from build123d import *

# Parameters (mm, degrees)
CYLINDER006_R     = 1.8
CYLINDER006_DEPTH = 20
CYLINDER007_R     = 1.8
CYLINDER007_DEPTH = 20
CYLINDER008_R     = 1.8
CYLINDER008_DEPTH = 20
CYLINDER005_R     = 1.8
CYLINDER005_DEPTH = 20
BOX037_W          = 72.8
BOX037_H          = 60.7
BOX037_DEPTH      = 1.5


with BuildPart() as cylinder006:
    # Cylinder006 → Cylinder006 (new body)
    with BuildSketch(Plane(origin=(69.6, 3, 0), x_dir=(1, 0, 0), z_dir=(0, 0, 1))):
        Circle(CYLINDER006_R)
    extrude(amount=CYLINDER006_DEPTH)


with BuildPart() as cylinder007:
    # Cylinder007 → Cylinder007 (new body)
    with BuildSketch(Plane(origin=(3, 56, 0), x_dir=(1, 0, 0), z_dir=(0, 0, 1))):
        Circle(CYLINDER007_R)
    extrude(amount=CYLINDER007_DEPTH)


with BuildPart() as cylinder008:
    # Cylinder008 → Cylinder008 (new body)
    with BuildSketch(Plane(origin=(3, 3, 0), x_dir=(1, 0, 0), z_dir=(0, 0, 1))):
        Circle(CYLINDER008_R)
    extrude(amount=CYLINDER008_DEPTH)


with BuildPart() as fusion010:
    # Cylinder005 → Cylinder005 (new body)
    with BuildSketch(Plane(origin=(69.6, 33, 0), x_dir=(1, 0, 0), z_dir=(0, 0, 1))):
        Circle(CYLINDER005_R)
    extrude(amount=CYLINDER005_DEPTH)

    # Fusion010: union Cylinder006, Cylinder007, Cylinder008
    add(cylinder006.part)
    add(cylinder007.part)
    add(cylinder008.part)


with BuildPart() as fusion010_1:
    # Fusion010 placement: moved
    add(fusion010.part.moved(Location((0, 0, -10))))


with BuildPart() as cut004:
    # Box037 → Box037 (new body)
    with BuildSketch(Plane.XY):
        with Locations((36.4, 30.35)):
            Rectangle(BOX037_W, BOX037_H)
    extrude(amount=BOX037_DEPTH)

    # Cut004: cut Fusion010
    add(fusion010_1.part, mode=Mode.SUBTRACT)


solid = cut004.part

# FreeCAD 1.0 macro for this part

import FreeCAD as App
import Part
import Sketcher
from FreeCAD import Vector
Q = App.Units.Quantity

doc = App.newDocument("Part")
body = doc.addObject("PartDesign::Body", "Body")

# Sketch on XY plane
sketch1 = body.newObject("Sketcher::SketchObject", "Sketch")
sketch1.AttachmentSupport = (doc.getObject("XY_Plane"), [""])
sketch1.MapMode = "FlatFace"
sketch1.addGeometry(Part.Circle(Vector(69.6, 3, 0), Vector(0, 0, 1), 1.8), False)
sketch1.addConstraint(Sketcher.Constraint("Diameter", 0, Q("3.6 mm")))
sketch1.addConstraint(Sketcher.Constraint("DistanceY", -1, 1, 0, 3, Q("3 mm")))
sketch1.addConstraint(Sketcher.Constraint("DistanceX", -1, 1, 0, 3, Q("69.6 mm")))
pad1 = body.newObject("PartDesign::Pad", "Pad")
pad1.Profile = sketch1
pad1.Length = 20
body2 = doc.addObject("PartDesign::Body", "Body001")

# Sketch on XY plane
sketch2 = body2.newObject("Sketcher::SketchObject", "Sketch001")
sketch2.AttachmentSupport = (doc.getObject("XY_Plane001"), [""])
sketch2.MapMode = "FlatFace"
sketch2.addGeometry(Part.Circle(Vector(3, 56, 0), Vector(0, 0, 1), 1.8), False)
sketch2.addConstraint(Sketcher.Constraint("Diameter", 0, Q("3.6 mm")))
sketch2.addConstraint(Sketcher.Constraint("DistanceX", -1, 1, 0, 3, Q("3 mm")))
sketch2.addConstraint(Sketcher.Constraint("DistanceY", -1, 1, 0, 3, Q("56 mm")))
pad2 = body2.newObject("PartDesign::Pad", "Pad001")
pad2.Profile = sketch2
pad2.Length = 20
body3 = doc.addObject("PartDesign::Body", "Body002")

# Sketch on XY plane
sketch3 = body3.newObject("Sketcher::SketchObject", "Sketch002")
sketch3.AttachmentSupport = (doc.getObject("XY_Plane002"), [""])
sketch3.MapMode = "FlatFace"
sketch3.addGeometry(Part.Circle(Vector(3, 3, 0), Vector(0, 0, 1), 1.8), False)
sketch3.addConstraint(Sketcher.Constraint("Diameter", 0, Q("3.6 mm")))
sketch3.addConstraint(Sketcher.Constraint("DistanceX", -1, 1, 0, 3, Q("3 mm")))
sketch3.addConstraint(Sketcher.Constraint("DistanceY", -1, 1, 0, 3, Q("3 mm")))
pad3 = body3.newObject("PartDesign::Pad", "Pad002")
pad3.Profile = sketch3
pad3.Length = 20
body4 = doc.addObject("PartDesign::Body", "Body003")
body4.AllowCompound = True

# Sketch on XY plane
sketch4 = body4.newObject("Sketcher::SketchObject", "Sketch003")
sketch4.AttachmentSupport = (doc.getObject("XY_Plane003"), [""])
sketch4.MapMode = "FlatFace"
sketch4.addGeometry(Part.Circle(Vector(69.6, 33, 0), Vector(0, 0, 1), 1.8), False)
sketch4.addConstraint(Sketcher.Constraint("Diameter", 0, Q("3.6 mm")))
sketch4.addConstraint(Sketcher.Constraint("DistanceY", -1, 1, 0, 3, Q("33 mm")))
sketch4.addConstraint(Sketcher.Constraint("DistanceX", -1, 1, 0, 3, Q("69.6 mm")))
pad4 = body4.newObject("PartDesign::Pad", "Pad003")
pad4.Profile = sketch4
pad4.Length = 20
doc.recompute()

boolean = body4.newObject("PartDesign::Boolean", "Boolean")
boolean.Type = "Fuse"
boolean.addObjects([body])
doc.recompute()

boolean2 = body4.newObject("PartDesign::Boolean", "Boolean001")
boolean2.Type = "Fuse"
boolean2.addObjects([body2])
doc.recompute()

boolean3 = body4.newObject("PartDesign::Boolean", "Boolean002")
boolean3.Type = "Fuse"
boolean3.addObjects([body3])
body5 = doc.addObject("PartDesign::Body", "Body004")
body5.AllowCompound = True
doc.recompute()

body4.Placement = App.Placement(Vector(0, 0, -10), App.Rotation(Vector(0, 0, 1), 0))
boolean4 = body5.newObject("PartDesign::Boolean", "Boolean003")
boolean4.Type = "Fuse"
boolean4.addObjects([body4])
body6 = doc.addObject("PartDesign::Body", "Body005")

# Sketch on XY plane
sketch5 = body6.newObject("Sketcher::SketchObject", "Sketch004")
sketch5.AttachmentSupport = (doc.getObject("XY_Plane005"), [""])
sketch5.MapMode = "FlatFace"
sketch5.addGeometry(Part.LineSegment(Vector(0, 60.7, 0), Vector(0, 0, 0)), False)
sketch5.addGeometry(Part.LineSegment(Vector(0, 0, 0), Vector(72.8, 0, 0)), False)
sketch5.addGeometry(Part.LineSegment(Vector(72.8, 0, 0), Vector(72.8, 60.7, 0)), False)
sketch5.addGeometry(Part.LineSegment(Vector(72.8, 60.7, 0), Vector(0, 60.7, 0)), False)
sketch5.addConstraint(Sketcher.Constraint("Coincident", 0, 2, 1, 1))
sketch5.addConstraint(Sketcher.Constraint("Coincident", 1, 2, 2, 1))
sketch5.addConstraint(Sketcher.Constraint("Coincident", 2, 2, 3, 1))
sketch5.addConstraint(Sketcher.Constraint("Coincident", 3, 2, 0, 1))
sketch5.addConstraint(Sketcher.Constraint("Vertical", 0))
sketch5.addConstraint(Sketcher.Constraint("Horizontal", 1))
sketch5.addConstraint(Sketcher.Constraint("Vertical", 2))
sketch5.addConstraint(Sketcher.Constraint("Horizontal", 3))
sketch5.addConstraint(Sketcher.Constraint("Coincident", 0, 2, -1, 1))
sketch5.addConstraint(Sketcher.Constraint("DistanceX", 1, 1, 1, 2, Q("72.8 mm")))
sketch5.addConstraint(Sketcher.Constraint("DistanceY", 0, 2, 0, 1, Q("60.7 mm")))
pad5 = body6.newObject("PartDesign::Pad", "Pad004")
pad5.Profile = sketch5
pad5.Length = 1.5
doc.recompute()

boolean5 = body6.newObject("PartDesign::Boolean", "Boolean004")
boolean5.Type = "Cut"
boolean5.addObjects([body5])

doc.recompute()
